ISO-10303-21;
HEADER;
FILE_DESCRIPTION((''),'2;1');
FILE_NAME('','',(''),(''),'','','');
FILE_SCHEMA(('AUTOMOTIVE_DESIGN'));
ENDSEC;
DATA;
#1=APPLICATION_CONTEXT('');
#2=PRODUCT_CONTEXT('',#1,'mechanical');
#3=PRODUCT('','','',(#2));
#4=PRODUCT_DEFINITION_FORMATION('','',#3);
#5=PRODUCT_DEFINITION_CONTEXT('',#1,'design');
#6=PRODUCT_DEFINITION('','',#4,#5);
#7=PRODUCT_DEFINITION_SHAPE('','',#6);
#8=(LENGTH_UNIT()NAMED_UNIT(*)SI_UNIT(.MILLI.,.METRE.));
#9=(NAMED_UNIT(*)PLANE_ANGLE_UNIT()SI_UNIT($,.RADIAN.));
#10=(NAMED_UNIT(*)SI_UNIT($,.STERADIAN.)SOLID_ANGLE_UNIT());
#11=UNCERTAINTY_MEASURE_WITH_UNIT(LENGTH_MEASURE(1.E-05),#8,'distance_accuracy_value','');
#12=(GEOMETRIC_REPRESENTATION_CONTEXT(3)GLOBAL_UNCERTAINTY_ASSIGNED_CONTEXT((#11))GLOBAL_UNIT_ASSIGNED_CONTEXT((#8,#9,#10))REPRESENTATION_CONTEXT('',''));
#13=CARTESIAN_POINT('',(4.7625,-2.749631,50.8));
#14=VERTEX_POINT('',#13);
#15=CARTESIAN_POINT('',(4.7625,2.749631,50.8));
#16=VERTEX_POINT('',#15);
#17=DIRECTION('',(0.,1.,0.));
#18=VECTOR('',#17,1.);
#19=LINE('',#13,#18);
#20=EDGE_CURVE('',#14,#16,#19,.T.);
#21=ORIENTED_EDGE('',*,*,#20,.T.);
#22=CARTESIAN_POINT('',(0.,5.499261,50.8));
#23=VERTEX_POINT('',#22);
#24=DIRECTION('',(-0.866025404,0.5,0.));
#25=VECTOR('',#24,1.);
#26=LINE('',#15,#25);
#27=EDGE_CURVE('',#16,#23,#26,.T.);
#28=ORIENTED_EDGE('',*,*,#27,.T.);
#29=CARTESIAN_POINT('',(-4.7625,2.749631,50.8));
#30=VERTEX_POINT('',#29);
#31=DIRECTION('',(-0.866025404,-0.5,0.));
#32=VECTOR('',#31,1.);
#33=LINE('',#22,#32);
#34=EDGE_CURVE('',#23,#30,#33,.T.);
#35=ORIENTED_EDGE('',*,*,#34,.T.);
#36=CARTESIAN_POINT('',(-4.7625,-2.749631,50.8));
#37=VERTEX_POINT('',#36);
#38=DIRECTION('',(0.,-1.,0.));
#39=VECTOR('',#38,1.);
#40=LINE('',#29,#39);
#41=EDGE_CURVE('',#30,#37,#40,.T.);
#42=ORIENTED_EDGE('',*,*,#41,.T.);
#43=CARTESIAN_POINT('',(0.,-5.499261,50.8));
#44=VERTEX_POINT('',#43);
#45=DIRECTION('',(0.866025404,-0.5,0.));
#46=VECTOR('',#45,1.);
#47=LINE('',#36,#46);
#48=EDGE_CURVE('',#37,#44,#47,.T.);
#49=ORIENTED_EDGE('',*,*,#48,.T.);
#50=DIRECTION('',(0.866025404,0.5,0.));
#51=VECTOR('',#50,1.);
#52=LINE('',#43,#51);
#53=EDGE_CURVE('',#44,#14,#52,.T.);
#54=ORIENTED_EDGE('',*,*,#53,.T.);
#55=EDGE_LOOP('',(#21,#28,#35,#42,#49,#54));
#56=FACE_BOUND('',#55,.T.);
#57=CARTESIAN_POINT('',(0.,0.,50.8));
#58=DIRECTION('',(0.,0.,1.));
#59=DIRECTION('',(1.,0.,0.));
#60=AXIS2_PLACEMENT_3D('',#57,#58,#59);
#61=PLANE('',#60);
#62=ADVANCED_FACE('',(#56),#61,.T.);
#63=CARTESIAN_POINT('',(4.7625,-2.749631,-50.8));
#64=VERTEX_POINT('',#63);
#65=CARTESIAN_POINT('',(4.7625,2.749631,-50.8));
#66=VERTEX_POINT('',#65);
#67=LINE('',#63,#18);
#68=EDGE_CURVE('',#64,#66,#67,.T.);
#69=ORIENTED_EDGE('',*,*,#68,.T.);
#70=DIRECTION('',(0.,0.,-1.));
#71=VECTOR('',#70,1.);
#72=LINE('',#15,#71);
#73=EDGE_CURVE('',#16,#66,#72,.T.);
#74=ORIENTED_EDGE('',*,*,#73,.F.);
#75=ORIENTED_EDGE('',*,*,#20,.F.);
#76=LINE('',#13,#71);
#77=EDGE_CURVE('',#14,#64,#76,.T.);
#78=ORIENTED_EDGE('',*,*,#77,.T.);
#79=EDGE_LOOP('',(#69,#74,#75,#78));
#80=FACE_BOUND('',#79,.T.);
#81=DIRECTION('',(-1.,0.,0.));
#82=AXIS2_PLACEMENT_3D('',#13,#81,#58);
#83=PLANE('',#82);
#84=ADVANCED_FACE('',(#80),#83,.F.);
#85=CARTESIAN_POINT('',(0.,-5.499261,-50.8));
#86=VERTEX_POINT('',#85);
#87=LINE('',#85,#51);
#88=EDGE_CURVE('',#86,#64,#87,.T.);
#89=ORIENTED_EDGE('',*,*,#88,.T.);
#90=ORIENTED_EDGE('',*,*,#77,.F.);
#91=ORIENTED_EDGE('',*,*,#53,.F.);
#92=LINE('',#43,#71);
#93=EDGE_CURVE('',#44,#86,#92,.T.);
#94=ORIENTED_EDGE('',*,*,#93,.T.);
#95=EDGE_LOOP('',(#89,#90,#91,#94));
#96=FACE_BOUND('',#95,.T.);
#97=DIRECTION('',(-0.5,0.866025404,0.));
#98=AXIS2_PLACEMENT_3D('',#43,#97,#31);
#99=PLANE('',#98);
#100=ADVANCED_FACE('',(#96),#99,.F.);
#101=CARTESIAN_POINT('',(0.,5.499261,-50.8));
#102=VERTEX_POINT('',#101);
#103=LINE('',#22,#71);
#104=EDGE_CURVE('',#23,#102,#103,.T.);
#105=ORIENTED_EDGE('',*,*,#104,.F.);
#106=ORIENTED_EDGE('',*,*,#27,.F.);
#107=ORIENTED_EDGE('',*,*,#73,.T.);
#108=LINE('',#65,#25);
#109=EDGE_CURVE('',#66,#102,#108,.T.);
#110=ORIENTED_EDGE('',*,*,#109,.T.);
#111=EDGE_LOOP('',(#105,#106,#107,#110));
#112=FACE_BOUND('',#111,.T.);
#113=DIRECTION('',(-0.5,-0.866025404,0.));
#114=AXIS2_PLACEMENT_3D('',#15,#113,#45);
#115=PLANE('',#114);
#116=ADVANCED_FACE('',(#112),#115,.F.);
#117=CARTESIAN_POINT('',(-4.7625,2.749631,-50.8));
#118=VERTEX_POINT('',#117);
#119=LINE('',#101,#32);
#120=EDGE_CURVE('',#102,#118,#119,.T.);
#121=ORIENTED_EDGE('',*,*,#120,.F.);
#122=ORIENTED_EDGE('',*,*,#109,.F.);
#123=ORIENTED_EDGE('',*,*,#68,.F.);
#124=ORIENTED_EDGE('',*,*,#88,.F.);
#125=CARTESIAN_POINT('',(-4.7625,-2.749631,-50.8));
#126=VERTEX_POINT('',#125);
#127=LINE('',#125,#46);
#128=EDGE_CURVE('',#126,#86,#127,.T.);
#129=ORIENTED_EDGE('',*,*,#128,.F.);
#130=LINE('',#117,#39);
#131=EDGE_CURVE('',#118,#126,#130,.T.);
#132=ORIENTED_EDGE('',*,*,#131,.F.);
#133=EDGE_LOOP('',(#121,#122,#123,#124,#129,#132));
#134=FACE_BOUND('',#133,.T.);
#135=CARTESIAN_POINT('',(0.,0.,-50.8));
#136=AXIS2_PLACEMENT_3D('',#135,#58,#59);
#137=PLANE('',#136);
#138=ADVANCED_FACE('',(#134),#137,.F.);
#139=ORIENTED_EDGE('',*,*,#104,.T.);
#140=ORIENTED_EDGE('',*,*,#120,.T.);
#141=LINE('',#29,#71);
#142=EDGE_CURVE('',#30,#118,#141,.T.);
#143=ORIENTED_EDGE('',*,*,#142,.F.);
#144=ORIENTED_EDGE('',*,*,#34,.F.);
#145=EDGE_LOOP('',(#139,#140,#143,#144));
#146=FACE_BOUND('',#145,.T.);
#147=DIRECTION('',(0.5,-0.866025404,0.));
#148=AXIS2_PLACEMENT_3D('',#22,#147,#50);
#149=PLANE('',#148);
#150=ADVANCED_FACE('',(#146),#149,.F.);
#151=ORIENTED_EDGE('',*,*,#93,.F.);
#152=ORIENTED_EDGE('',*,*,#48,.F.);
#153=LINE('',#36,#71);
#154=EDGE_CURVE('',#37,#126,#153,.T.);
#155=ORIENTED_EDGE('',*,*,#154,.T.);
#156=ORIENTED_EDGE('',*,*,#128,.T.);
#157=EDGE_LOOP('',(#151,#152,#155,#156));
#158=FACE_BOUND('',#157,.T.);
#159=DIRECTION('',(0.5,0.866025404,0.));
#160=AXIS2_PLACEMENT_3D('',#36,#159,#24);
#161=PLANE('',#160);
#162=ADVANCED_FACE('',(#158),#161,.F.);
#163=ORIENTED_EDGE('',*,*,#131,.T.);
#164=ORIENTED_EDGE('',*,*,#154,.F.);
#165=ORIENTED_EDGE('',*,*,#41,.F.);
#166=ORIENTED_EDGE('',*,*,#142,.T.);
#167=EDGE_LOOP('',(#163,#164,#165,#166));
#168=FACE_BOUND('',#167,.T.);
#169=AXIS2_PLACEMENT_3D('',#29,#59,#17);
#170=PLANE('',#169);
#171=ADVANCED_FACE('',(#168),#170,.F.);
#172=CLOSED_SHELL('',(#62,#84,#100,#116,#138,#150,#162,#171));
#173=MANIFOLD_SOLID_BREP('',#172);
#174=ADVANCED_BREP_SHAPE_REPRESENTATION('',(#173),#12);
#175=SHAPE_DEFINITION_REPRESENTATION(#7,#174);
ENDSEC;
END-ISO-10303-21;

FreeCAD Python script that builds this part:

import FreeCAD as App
import Part
import Sketcher
Q = App.Units.Quantity

doc = App.newDocument("Part")
params = doc.addObject("Spreadsheet::Sheet", "Params")
for row, (alias, value) in enumerate([
    ("pad1_length", "2 in"),
    ("pad1_length2", "2 in"),
], start=1):
    params.set(f"A{row}", alias)
    params.set(f"B{row}", "=" + value)
    params.setAlias(f"B{row}", alias)

body = doc.addObject("PartDesign::Body", "Body")

# Sketch on XY plane
sketch1 = body.newObject("Sketcher::SketchObject", "Sketch")
sketch1.AttachmentSupport = (doc.getObject("XY_Plane"), [""])
sketch1.MapMode = "FlatFace"
sketch1.addGeometry([
    Part.LineSegment(App.Vector(0, 5, 0), App.Vector(-5, 3, 0)),  # 0
    Part.LineSegment(App.Vector(-5, 3, 0), App.Vector(-5, -3, 0)),  # 1
    Part.LineSegment(App.Vector(-5, -3, 0), App.Vector(0, -5, 0)),  # 2
    Part.LineSegment(App.Vector(0, -5, 0), App.Vector(5, -3, 0)),  # 3
    Part.LineSegment(App.Vector(5, -3, 0), App.Vector(5, 3, 0)),  # 4
    Part.LineSegment(App.Vector(5, 3, 0), App.Vector(0, 5, 0)),  # 5
], False)
sketch1.addConstraint([
    Sketcher.Constraint("Coincident", 0, 2, 1, 1),
    Sketcher.Constraint("Coincident", 1, 2, 2, 1),
    Sketcher.Constraint("Coincident", 2, 2, 3, 1),
    Sketcher.Constraint("Coincident", 3, 2, 4, 1),
    Sketcher.Constraint("Coincident", 4, 2, 5, 1),
    Sketcher.Constraint("Coincident", 5, 2, 0, 1),
    Sketcher.Constraint("Vertical", 1),
    Sketcher.Constraint("Vertical", 4),
    Sketcher.Constraint("Symmetric", 0, 2, 3, 2, -1, 1),
    Sketcher.Constraint("Symmetric", 2, 2, 5, 2, -1, 1),
    Sketcher.Constraint("PointOnObject", 2, 2, -2),
    Sketcher.Constraint("Parallel", 2, 5),
    Sketcher.Constraint("Horizontal", 1, 2, 3, 2),
    Sketcher.Constraint("Angle", 0, Q("-150 deg")),
    Sketcher.Constraint("DistanceX", 0, 2, -1, 1, Q("0.1875 in")),
    Sketcher.Constraint("DistanceY", 1, 2, 1, 1, 5.499261),
])
pad1 = body.newObject("PartDesign::Pad", "Pad")
pad1.Profile = sketch1
pad1.Type = "TwoLengths"
pad1.setExpression("Length", "Params.pad1_length")
pad1.setExpression("Length2", "Params.pad1_length2")

doc.recompute()
